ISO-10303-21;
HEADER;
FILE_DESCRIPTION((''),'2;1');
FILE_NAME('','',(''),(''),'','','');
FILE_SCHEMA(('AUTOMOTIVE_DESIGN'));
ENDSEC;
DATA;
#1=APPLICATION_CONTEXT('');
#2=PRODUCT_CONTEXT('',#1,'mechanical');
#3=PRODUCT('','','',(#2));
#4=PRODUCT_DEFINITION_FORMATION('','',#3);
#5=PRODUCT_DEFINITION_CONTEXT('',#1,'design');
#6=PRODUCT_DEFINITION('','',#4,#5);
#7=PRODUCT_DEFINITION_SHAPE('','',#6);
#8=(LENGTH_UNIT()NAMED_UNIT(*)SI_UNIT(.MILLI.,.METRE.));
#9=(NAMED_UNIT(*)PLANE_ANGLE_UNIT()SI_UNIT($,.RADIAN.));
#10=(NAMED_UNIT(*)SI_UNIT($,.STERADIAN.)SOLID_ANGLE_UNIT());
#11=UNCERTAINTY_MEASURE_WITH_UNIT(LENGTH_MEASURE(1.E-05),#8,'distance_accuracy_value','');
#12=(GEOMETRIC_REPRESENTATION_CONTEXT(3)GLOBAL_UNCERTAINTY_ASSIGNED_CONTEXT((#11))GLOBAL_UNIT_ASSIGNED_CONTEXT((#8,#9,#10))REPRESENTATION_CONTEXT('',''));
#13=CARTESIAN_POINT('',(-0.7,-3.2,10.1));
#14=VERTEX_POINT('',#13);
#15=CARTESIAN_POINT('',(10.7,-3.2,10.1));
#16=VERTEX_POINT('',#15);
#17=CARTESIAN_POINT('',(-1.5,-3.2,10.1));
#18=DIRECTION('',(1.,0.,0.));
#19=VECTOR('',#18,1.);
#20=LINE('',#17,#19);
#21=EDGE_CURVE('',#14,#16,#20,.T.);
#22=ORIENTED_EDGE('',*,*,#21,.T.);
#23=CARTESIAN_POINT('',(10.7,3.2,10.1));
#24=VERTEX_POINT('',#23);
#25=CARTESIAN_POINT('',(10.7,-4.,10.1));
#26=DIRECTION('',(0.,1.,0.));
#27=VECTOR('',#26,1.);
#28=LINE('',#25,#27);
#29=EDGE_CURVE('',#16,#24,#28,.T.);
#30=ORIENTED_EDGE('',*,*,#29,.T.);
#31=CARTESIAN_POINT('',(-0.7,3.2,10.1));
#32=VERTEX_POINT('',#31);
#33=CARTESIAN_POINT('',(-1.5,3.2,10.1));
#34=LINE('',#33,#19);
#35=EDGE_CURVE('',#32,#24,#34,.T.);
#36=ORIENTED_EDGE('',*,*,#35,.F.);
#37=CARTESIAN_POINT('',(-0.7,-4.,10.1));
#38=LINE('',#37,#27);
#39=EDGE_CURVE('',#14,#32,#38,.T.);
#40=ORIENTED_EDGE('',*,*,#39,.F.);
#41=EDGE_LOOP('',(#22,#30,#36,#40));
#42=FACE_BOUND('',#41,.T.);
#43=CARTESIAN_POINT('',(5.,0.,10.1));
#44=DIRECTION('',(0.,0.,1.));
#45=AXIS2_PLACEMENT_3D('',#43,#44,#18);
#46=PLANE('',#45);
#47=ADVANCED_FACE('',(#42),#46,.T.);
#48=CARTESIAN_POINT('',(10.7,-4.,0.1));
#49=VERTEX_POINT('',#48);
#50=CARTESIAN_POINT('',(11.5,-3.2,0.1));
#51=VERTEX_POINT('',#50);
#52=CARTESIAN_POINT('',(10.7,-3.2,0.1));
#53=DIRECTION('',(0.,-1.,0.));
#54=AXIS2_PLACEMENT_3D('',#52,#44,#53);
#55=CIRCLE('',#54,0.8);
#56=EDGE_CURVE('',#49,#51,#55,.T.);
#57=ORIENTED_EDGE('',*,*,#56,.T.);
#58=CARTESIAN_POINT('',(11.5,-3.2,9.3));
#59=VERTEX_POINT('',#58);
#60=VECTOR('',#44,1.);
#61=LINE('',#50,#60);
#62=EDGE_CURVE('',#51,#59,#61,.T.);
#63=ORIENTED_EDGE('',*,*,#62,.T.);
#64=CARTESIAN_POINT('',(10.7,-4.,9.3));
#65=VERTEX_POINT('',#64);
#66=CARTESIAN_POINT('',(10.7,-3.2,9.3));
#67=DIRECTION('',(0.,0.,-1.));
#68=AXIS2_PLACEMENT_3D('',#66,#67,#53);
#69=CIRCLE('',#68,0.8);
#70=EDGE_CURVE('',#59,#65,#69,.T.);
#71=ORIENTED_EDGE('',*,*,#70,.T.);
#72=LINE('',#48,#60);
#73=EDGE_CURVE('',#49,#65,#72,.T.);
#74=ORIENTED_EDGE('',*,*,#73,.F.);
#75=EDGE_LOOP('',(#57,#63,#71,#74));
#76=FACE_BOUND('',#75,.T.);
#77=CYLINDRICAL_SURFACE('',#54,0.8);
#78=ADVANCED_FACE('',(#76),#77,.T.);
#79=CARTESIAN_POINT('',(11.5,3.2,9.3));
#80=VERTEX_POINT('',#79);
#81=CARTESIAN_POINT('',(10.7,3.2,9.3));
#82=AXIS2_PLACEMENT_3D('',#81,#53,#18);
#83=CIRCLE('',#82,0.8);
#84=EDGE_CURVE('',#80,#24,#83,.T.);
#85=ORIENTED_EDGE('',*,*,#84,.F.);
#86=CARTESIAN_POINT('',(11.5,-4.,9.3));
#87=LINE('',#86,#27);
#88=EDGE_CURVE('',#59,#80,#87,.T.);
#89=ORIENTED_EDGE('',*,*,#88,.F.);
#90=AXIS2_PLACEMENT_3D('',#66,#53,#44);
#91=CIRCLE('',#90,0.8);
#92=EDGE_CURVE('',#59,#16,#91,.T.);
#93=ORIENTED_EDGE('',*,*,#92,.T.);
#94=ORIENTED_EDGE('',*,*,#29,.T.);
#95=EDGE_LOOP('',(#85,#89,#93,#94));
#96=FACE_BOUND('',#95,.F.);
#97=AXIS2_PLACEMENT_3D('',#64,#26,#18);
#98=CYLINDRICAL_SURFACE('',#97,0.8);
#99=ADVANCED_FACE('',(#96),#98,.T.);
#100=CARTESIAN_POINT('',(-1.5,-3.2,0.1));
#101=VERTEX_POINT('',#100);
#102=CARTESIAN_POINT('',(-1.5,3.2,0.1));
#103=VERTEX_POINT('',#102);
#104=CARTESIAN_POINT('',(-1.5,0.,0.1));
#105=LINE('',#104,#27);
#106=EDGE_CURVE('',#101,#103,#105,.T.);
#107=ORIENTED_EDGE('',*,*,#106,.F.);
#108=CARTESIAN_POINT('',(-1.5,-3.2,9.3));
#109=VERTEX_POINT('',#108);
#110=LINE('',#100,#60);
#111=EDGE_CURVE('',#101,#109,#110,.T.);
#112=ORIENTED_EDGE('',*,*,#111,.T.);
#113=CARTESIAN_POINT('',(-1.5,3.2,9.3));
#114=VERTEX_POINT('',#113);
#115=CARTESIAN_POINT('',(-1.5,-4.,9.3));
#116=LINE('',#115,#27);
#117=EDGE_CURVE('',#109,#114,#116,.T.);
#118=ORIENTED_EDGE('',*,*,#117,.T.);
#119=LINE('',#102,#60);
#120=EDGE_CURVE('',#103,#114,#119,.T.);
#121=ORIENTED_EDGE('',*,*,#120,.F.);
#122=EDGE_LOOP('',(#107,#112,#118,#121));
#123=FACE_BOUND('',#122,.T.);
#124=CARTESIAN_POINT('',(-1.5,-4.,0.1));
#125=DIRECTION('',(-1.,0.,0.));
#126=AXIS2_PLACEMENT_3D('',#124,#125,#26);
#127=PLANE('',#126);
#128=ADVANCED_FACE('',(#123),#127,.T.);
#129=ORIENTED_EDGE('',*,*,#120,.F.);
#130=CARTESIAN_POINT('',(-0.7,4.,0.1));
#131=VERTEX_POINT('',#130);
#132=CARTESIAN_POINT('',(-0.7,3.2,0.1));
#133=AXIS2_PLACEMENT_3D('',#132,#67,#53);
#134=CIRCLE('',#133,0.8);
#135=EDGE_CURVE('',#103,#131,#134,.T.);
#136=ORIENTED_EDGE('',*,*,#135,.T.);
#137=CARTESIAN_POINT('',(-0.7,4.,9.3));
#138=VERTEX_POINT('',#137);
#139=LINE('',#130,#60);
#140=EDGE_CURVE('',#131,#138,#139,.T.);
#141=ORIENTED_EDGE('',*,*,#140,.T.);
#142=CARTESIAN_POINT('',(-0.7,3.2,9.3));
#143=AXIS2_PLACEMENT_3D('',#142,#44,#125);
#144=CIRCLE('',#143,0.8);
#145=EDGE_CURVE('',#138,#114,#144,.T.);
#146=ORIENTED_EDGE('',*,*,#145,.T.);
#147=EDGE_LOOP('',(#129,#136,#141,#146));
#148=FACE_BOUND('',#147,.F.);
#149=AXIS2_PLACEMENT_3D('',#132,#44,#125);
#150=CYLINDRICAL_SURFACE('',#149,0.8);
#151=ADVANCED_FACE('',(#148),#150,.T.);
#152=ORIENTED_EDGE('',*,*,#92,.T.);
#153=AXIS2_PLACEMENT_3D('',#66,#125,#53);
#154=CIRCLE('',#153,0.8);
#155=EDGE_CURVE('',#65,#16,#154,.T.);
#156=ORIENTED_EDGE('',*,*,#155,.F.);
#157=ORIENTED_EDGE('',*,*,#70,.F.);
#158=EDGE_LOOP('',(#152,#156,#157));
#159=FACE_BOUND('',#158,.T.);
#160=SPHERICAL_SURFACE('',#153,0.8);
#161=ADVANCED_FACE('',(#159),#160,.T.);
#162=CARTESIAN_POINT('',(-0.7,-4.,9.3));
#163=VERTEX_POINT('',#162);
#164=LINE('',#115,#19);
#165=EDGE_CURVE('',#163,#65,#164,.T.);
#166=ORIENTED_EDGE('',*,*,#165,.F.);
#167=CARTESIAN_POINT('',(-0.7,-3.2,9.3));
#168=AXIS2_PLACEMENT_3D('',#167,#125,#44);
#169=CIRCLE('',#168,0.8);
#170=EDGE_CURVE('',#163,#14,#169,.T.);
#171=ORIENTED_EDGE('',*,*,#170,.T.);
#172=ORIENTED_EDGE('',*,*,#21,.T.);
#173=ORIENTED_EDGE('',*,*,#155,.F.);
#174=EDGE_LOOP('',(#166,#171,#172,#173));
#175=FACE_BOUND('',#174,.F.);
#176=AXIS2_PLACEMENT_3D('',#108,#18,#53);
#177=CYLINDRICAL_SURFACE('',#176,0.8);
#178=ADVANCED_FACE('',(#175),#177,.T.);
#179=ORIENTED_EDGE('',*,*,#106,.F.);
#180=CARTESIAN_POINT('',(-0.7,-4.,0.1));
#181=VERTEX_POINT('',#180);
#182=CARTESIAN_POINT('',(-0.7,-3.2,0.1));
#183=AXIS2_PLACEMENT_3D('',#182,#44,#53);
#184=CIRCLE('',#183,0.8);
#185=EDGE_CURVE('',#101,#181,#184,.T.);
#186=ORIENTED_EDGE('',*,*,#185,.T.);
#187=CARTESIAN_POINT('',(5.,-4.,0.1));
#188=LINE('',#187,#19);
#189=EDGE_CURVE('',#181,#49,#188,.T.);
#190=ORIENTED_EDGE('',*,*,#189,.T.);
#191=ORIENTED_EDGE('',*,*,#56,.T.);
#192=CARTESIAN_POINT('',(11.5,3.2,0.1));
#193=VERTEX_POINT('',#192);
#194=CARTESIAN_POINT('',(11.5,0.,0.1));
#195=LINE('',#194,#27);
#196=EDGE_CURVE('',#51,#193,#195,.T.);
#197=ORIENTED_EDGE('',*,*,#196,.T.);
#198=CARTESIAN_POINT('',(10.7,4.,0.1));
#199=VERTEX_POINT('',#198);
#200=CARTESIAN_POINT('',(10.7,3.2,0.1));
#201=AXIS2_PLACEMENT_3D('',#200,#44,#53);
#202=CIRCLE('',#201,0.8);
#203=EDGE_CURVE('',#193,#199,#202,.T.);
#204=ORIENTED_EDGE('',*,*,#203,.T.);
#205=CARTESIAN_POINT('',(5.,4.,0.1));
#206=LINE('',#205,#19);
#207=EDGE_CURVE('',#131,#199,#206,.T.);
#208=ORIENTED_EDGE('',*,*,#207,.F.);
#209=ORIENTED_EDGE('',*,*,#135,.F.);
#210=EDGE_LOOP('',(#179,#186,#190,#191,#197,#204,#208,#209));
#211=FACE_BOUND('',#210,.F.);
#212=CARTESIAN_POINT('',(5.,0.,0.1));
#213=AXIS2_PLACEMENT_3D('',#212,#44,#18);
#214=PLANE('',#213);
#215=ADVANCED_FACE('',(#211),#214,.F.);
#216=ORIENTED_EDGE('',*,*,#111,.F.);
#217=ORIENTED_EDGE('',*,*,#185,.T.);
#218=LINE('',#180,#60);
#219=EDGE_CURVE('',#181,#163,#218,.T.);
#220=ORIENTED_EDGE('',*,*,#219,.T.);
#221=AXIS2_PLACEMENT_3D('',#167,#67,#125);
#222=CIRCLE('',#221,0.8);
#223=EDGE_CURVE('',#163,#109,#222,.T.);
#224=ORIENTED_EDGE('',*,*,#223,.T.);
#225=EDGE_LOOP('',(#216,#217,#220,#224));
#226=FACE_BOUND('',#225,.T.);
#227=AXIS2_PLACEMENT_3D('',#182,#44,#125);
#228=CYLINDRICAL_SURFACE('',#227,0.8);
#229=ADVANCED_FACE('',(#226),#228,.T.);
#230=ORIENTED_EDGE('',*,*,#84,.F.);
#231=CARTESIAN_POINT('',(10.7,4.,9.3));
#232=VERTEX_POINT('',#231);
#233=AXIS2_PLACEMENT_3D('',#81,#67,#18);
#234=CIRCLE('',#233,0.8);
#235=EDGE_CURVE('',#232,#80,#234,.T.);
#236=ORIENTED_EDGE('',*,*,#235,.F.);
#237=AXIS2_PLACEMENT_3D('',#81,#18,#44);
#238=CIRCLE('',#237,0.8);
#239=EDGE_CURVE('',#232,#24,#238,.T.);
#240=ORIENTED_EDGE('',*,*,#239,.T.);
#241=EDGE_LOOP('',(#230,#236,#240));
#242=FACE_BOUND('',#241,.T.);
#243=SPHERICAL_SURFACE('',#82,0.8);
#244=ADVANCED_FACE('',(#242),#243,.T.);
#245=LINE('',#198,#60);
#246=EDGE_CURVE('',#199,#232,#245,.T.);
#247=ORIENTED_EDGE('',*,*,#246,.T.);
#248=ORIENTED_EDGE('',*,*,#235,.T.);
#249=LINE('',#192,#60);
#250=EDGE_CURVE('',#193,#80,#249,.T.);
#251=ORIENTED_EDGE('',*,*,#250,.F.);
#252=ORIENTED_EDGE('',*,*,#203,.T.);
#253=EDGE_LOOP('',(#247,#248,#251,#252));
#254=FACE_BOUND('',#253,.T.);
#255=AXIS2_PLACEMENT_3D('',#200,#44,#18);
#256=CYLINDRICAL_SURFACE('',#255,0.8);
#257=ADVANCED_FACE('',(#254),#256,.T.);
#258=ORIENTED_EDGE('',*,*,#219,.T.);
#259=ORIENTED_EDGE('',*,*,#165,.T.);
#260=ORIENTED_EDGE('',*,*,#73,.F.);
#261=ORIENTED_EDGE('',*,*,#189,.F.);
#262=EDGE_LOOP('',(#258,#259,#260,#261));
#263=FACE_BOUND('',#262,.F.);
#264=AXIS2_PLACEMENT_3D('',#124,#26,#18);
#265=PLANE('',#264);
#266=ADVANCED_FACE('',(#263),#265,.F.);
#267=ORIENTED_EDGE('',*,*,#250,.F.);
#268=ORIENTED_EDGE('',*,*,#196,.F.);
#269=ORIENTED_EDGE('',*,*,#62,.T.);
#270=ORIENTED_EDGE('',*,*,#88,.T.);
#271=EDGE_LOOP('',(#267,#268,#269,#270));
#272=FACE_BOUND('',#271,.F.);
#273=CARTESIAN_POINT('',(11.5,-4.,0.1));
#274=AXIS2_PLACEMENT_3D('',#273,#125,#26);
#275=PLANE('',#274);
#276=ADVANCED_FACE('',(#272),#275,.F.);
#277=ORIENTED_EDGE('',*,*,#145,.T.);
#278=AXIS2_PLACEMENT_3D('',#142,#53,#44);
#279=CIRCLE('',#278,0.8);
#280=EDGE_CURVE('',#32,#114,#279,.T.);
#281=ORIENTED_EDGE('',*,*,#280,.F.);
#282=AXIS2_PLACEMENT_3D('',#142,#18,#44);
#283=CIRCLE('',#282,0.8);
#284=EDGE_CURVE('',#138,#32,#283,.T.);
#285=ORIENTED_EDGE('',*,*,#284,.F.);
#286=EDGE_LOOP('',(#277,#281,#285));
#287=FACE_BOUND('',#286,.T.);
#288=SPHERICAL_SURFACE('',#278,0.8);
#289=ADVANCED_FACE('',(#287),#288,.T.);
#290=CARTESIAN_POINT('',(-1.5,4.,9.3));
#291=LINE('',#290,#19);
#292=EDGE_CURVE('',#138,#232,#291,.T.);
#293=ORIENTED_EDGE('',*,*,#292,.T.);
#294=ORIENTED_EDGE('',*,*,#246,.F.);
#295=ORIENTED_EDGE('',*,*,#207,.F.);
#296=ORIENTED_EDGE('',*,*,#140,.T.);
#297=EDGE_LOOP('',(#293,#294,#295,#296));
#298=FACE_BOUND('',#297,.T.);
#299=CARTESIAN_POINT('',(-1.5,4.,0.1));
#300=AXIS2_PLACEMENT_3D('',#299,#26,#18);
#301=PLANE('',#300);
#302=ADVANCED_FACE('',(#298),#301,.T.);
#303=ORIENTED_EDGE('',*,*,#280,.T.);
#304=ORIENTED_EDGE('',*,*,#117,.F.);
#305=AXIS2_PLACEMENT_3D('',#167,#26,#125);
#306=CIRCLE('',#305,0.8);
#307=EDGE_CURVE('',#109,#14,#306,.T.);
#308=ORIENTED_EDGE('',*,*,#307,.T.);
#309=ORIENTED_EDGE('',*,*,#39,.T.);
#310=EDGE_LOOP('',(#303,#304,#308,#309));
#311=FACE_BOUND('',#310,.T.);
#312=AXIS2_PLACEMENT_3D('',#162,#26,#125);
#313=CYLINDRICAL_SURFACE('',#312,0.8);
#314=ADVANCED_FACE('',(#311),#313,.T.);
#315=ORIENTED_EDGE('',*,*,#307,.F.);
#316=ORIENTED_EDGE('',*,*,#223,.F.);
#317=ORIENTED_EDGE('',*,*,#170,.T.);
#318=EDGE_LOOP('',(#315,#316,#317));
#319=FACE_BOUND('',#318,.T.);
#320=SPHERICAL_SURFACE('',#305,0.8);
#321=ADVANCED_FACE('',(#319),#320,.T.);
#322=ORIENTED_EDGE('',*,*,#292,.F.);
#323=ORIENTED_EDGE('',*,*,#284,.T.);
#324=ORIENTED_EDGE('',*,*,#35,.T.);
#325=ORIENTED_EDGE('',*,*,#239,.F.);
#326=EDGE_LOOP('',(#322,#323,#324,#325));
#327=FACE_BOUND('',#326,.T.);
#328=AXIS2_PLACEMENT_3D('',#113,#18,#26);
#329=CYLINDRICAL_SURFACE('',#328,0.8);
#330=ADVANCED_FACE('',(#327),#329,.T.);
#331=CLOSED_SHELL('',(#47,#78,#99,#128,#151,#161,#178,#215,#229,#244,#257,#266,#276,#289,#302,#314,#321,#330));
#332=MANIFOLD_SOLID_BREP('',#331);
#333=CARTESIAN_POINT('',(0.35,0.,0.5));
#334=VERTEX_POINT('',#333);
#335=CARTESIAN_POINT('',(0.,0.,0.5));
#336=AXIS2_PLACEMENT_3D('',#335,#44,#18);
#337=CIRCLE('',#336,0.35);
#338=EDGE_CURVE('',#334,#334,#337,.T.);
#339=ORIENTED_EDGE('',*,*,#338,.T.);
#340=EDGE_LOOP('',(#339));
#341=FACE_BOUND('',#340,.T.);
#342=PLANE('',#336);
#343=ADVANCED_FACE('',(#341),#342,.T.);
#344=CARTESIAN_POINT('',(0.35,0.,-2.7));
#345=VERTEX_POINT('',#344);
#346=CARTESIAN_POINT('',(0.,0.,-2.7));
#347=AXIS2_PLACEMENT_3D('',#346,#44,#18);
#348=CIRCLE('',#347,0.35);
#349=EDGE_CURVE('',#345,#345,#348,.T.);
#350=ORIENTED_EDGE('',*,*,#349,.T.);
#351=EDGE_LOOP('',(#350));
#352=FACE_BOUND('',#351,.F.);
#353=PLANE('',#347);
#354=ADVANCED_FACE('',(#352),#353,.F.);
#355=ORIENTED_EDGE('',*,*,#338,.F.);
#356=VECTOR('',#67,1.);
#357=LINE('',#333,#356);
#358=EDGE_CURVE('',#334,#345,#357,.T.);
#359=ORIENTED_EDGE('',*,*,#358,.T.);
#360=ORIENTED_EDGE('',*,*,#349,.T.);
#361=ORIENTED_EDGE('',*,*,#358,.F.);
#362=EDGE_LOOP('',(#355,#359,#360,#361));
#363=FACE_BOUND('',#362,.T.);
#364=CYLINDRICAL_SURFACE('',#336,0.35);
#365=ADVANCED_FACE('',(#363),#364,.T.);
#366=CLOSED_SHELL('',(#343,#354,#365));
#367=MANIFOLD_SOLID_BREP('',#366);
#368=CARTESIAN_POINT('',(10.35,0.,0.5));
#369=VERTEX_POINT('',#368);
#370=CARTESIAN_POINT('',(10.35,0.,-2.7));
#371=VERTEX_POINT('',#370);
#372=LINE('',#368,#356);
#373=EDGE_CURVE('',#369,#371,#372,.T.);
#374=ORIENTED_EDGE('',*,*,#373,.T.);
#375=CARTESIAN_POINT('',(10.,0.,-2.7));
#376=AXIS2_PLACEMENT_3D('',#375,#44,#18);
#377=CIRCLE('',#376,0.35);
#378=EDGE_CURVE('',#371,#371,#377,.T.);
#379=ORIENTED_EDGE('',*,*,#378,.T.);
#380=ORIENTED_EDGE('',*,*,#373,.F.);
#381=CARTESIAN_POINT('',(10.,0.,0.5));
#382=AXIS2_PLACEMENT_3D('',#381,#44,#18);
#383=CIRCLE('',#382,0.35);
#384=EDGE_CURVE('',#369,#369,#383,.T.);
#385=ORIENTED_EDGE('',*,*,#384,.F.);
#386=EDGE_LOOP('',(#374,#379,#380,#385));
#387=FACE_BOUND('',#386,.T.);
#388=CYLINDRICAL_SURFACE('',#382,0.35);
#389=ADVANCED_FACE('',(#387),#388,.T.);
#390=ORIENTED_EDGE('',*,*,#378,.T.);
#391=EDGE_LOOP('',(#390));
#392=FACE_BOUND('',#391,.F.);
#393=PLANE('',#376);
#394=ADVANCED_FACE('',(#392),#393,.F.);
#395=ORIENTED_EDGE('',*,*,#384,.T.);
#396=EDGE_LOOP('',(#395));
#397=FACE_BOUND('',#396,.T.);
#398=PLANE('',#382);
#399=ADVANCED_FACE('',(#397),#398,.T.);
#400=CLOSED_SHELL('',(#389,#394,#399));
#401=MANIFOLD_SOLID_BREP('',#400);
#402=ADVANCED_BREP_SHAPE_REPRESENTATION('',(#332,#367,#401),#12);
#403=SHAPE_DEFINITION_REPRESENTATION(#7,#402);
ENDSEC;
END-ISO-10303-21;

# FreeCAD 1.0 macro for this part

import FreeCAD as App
import Part
import Sketcher
Q = App.Units.Quantity


def edges_at(feature, points):
    """Names of the edges that pass closest to the given points."""
    edges = feature.Shape.Edges
    near = lambda p: min(range(len(edges)), key=lambda i: edges[i].distToShape(Part.Vertex(*p))[0])
    return sorted({f"Edge{near(p) + 1}" for p in points})

doc = App.newDocument("Part")
body = doc.addObject("PartDesign::Body", "Body")

# Sketch on XY plane
sketch1 = body.newObject("Sketcher::SketchObject", "Sketch")
sketch1.AttachmentSupport = (doc.getObject("XY_Plane"), [""])
sketch1.MapMode = "FlatFace"
sketch1.AttachmentOffset = App.Placement(App.Vector(0, 0, 0.1), App.Rotation())
sketch1.addGeometry(Part.LineSegment(App.Vector(-2, 4, 0), App.Vector(-2, -4, 0)), False)
sketch1.addGeometry(Part.LineSegment(App.Vector(-2, -4, 0), App.Vector(12, -4, 0)), False)
sketch1.addGeometry(Part.LineSegment(App.Vector(12, -4, 0), App.Vector(12, 4, 0)), False)
sketch1.addGeometry(Part.LineSegment(App.Vector(12, 4, 0), App.Vector(-2, 4, 0)), False)
sketch1.addConstraint(Sketcher.Constraint("Coincident", 0, 2, 1, 1))
sketch1.addConstraint(Sketcher.Constraint("Coincident", 1, 2, 2, 1))
sketch1.addConstraint(Sketcher.Constraint("Coincident", 2, 2, 3, 1))
sketch1.addConstraint(Sketcher.Constraint("Coincident", 3, 2, 0, 1))
sketch1.addConstraint(Sketcher.Constraint("Vertical", 0))
sketch1.addConstraint(Sketcher.Constraint("Horizontal", 1))
sketch1.addConstraint(Sketcher.Constraint("Vertical", 2))
sketch1.addConstraint(Sketcher.Constraint("Horizontal", 3))
sketch1.addConstraint(Sketcher.Constraint("DistanceX", 1, 1, 1, 2, Q("13 mm")))
sketch1.addConstraint(Sketcher.Constraint("DistanceY", 0, 2, 0, 1, Q("8 mm")))
sketch1.addConstraint(Sketcher.Constraint("DistanceY", 0, 2, -1, 1, Q("4 mm")))
sketch1.addConstraint(Sketcher.Constraint("DistanceX", 0, 2, -1, 1, Q("1.5 mm")))
pad1 = body.newObject("PartDesign::Pad", "Pad")
pad1.Profile = sketch1
pad1.Length = 10
doc.recompute()

fillet = body.newObject("PartDesign::Fillet", "Fillet")
fillet.Base = (pad1, edges_at(pad1, [
    (-1.5, 0, 10.1),
    (-1.5, -4, 5.1),
    (5, -4, 10.1),
    (11.5, -4, 5.1),
    (11.5, 0, 10.1),
    (11.5, 4, 5.1),
    (5, 4, 10.1),
    (-1.5, 4, 5.1),
]))
fillet.Radius = 0.8
body2 = doc.addObject("PartDesign::Body", "Body001")
body2.AllowCompound = True

# Sketch on XY plane
sketch2 = body2.newObject("Sketcher::SketchObject", "Sketch001")
sketch2.AttachmentSupport = (doc.getObject("XY_Plane001"), [""])
sketch2.MapMode = "FlatFace"
sketch2.AttachmentOffset = App.Placement(App.Vector(0, 0, 0.5), App.Rotation())
sketch2.addGeometry(Part.Circle(App.Vector(0, 0, 0), App.Vector(0, 0, 1), 0.35), False)
sketch2.addGeometry(Part.Circle(App.Vector(10, 0, 0), App.Vector(0, 0, 1), 0.35), False)
sketch2.addConstraint(Sketcher.Constraint("Coincident", 0, 3, -1, 1))
sketch2.addConstraint(Sketcher.Constraint("Equal", 0, 1))
sketch2.addConstraint(Sketcher.Constraint("PointOnObject", 1, 3, -1))
sketch2.addConstraint(Sketcher.Constraint("Diameter", 0, Q("0.7 mm")))
sketch2.addConstraint(Sketcher.Constraint("DistanceX", -1, 1, 1, 3, Q("10 mm")))
pad2 = body2.newObject("PartDesign::Pad", "Pad001")
pad2.Profile = sketch2
pad2.Length = 3.2
pad2.Reversed = True

doc.recompute()
